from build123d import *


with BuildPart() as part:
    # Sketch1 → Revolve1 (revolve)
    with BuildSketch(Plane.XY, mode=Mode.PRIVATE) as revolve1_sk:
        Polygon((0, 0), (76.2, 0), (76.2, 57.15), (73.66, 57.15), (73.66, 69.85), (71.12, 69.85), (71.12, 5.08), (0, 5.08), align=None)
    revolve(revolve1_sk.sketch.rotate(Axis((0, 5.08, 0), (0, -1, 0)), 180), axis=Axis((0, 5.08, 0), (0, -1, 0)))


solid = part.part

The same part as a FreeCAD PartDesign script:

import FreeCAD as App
import Part
import Sketcher
from FreeCAD import Vector
Q = App.Units.Quantity

doc = App.newDocument("Part")
body = doc.addObject("PartDesign::Body", "Body")

sketch1 = doc.addObject("Sketcher::SketchObject", "Sketch")
body.addObject(sketch1)
sketch1.AttachmentSupport = (doc.XY_Plane, [""])
sketch1.MapMode = "FlatFace"
sketch1.addGeometry(Part.LineSegment(Vector(0, 0, 0), Vector(76.2, 0, 0)), False)
sketch1.addGeometry(Part.LineSegment(Vector(76.2, 0, 0), Vector(76.2, 57.1, 0)), False)
sketch1.addGeometry(Part.LineSegment(Vector(76.2, 57.1, 0), Vector(73.7, 57.1, 0)), False)
sketch1.addGeometry(Part.LineSegment(Vector(73.7, 57.1, 0), Vector(73.7, 69.8, 0)), False)
sketch1.addGeometry(Part.LineSegment(Vector(73.7, 69.8, 0), Vector(71.1, 69.8, 0)), False)
sketch1.addGeometry(Part.LineSegment(Vector(71.1, 69.8, 0), Vector(71.1, 5.1, 0)), False)
sketch1.addGeometry(Part.LineSegment(Vector(71.1, 5.1, 0), Vector(0, 5.1, 0)), False)
sketch1.addGeometry(Part.LineSegment(Vector(0, 5.1, 0), Vector(0, 0, 0)), False)
sketch1.addConstraint(Sketcher.Constraint("Coincident", 0, 2, 1, 1))
sketch1.addConstraint(Sketcher.Constraint("Coincident", 1, 2, 2, 1))
sketch1.addConstraint(Sketcher.Constraint("Coincident", 2, 2, 3, 1))
sketch1.addConstraint(Sketcher.Constraint("Coincident", 3, 2, 4, 1))
sketch1.addConstraint(Sketcher.Constraint("Coincident", 4, 2, 5, 1))
sketch1.addConstraint(Sketcher.Constraint("Coincident", 5, 2, 6, 1))
sketch1.addConstraint(Sketcher.Constraint("Coincident", 6, 2, 7, 1))
sketch1.addConstraint(Sketcher.Constraint("Coincident", 7, 2, 0, 1))
sketch1.addConstraint(Sketcher.Constraint("Horizontal", 0))
sketch1.addConstraint(Sketcher.Constraint("Vertical", 1))
sketch1.addConstraint(Sketcher.Constraint("Horizontal", 2))
sketch1.addConstraint(Sketcher.Constraint("Vertical", 3))
sketch1.addConstraint(Sketcher.Constraint("Horizontal", 4))
sketch1.addConstraint(Sketcher.Constraint("Vertical", 5))
sketch1.addConstraint(Sketcher.Constraint("Horizontal", 6))
sketch1.addConstraint(Sketcher.Constraint("Vertical", 7))
sketch1.addConstraint(Sketcher.Constraint("Coincident", 7, 2, -1, 1))
sketch1.addConstraint(Sketcher.Constraint("Equal", 2, 4))
sketch1.addConstraint(Sketcher.Constraint("DistanceX", 0, 1, 0, 2, Q("3 in")))
sketch1.addConstraint(Sketcher.Constraint("DistanceX", 2, 2, 2, 1, Q("0.1 in")))
sketch1.addConstraint(Sketcher.Constraint("DistanceY", 3, 1, 3, 2, Q("0.5 in")))
sketch1.addConstraint(Sketcher.Constraint("DistanceY", 7, 2, 7, 1, Q("0.2 in")))
sketch1.addConstraint(Sketcher.Constraint("DistanceY", 1, 1, 1, 2, Q("2.25 in")))
revolution = doc.addObject("PartDesign::Revolution", "Revolution")
body.addObject(revolution)
revolution.Profile = sketch1
revolution.ReferenceAxis = (sketch1, ["V_Axis"])
revolution.Angle = 360

doc.recompute()
